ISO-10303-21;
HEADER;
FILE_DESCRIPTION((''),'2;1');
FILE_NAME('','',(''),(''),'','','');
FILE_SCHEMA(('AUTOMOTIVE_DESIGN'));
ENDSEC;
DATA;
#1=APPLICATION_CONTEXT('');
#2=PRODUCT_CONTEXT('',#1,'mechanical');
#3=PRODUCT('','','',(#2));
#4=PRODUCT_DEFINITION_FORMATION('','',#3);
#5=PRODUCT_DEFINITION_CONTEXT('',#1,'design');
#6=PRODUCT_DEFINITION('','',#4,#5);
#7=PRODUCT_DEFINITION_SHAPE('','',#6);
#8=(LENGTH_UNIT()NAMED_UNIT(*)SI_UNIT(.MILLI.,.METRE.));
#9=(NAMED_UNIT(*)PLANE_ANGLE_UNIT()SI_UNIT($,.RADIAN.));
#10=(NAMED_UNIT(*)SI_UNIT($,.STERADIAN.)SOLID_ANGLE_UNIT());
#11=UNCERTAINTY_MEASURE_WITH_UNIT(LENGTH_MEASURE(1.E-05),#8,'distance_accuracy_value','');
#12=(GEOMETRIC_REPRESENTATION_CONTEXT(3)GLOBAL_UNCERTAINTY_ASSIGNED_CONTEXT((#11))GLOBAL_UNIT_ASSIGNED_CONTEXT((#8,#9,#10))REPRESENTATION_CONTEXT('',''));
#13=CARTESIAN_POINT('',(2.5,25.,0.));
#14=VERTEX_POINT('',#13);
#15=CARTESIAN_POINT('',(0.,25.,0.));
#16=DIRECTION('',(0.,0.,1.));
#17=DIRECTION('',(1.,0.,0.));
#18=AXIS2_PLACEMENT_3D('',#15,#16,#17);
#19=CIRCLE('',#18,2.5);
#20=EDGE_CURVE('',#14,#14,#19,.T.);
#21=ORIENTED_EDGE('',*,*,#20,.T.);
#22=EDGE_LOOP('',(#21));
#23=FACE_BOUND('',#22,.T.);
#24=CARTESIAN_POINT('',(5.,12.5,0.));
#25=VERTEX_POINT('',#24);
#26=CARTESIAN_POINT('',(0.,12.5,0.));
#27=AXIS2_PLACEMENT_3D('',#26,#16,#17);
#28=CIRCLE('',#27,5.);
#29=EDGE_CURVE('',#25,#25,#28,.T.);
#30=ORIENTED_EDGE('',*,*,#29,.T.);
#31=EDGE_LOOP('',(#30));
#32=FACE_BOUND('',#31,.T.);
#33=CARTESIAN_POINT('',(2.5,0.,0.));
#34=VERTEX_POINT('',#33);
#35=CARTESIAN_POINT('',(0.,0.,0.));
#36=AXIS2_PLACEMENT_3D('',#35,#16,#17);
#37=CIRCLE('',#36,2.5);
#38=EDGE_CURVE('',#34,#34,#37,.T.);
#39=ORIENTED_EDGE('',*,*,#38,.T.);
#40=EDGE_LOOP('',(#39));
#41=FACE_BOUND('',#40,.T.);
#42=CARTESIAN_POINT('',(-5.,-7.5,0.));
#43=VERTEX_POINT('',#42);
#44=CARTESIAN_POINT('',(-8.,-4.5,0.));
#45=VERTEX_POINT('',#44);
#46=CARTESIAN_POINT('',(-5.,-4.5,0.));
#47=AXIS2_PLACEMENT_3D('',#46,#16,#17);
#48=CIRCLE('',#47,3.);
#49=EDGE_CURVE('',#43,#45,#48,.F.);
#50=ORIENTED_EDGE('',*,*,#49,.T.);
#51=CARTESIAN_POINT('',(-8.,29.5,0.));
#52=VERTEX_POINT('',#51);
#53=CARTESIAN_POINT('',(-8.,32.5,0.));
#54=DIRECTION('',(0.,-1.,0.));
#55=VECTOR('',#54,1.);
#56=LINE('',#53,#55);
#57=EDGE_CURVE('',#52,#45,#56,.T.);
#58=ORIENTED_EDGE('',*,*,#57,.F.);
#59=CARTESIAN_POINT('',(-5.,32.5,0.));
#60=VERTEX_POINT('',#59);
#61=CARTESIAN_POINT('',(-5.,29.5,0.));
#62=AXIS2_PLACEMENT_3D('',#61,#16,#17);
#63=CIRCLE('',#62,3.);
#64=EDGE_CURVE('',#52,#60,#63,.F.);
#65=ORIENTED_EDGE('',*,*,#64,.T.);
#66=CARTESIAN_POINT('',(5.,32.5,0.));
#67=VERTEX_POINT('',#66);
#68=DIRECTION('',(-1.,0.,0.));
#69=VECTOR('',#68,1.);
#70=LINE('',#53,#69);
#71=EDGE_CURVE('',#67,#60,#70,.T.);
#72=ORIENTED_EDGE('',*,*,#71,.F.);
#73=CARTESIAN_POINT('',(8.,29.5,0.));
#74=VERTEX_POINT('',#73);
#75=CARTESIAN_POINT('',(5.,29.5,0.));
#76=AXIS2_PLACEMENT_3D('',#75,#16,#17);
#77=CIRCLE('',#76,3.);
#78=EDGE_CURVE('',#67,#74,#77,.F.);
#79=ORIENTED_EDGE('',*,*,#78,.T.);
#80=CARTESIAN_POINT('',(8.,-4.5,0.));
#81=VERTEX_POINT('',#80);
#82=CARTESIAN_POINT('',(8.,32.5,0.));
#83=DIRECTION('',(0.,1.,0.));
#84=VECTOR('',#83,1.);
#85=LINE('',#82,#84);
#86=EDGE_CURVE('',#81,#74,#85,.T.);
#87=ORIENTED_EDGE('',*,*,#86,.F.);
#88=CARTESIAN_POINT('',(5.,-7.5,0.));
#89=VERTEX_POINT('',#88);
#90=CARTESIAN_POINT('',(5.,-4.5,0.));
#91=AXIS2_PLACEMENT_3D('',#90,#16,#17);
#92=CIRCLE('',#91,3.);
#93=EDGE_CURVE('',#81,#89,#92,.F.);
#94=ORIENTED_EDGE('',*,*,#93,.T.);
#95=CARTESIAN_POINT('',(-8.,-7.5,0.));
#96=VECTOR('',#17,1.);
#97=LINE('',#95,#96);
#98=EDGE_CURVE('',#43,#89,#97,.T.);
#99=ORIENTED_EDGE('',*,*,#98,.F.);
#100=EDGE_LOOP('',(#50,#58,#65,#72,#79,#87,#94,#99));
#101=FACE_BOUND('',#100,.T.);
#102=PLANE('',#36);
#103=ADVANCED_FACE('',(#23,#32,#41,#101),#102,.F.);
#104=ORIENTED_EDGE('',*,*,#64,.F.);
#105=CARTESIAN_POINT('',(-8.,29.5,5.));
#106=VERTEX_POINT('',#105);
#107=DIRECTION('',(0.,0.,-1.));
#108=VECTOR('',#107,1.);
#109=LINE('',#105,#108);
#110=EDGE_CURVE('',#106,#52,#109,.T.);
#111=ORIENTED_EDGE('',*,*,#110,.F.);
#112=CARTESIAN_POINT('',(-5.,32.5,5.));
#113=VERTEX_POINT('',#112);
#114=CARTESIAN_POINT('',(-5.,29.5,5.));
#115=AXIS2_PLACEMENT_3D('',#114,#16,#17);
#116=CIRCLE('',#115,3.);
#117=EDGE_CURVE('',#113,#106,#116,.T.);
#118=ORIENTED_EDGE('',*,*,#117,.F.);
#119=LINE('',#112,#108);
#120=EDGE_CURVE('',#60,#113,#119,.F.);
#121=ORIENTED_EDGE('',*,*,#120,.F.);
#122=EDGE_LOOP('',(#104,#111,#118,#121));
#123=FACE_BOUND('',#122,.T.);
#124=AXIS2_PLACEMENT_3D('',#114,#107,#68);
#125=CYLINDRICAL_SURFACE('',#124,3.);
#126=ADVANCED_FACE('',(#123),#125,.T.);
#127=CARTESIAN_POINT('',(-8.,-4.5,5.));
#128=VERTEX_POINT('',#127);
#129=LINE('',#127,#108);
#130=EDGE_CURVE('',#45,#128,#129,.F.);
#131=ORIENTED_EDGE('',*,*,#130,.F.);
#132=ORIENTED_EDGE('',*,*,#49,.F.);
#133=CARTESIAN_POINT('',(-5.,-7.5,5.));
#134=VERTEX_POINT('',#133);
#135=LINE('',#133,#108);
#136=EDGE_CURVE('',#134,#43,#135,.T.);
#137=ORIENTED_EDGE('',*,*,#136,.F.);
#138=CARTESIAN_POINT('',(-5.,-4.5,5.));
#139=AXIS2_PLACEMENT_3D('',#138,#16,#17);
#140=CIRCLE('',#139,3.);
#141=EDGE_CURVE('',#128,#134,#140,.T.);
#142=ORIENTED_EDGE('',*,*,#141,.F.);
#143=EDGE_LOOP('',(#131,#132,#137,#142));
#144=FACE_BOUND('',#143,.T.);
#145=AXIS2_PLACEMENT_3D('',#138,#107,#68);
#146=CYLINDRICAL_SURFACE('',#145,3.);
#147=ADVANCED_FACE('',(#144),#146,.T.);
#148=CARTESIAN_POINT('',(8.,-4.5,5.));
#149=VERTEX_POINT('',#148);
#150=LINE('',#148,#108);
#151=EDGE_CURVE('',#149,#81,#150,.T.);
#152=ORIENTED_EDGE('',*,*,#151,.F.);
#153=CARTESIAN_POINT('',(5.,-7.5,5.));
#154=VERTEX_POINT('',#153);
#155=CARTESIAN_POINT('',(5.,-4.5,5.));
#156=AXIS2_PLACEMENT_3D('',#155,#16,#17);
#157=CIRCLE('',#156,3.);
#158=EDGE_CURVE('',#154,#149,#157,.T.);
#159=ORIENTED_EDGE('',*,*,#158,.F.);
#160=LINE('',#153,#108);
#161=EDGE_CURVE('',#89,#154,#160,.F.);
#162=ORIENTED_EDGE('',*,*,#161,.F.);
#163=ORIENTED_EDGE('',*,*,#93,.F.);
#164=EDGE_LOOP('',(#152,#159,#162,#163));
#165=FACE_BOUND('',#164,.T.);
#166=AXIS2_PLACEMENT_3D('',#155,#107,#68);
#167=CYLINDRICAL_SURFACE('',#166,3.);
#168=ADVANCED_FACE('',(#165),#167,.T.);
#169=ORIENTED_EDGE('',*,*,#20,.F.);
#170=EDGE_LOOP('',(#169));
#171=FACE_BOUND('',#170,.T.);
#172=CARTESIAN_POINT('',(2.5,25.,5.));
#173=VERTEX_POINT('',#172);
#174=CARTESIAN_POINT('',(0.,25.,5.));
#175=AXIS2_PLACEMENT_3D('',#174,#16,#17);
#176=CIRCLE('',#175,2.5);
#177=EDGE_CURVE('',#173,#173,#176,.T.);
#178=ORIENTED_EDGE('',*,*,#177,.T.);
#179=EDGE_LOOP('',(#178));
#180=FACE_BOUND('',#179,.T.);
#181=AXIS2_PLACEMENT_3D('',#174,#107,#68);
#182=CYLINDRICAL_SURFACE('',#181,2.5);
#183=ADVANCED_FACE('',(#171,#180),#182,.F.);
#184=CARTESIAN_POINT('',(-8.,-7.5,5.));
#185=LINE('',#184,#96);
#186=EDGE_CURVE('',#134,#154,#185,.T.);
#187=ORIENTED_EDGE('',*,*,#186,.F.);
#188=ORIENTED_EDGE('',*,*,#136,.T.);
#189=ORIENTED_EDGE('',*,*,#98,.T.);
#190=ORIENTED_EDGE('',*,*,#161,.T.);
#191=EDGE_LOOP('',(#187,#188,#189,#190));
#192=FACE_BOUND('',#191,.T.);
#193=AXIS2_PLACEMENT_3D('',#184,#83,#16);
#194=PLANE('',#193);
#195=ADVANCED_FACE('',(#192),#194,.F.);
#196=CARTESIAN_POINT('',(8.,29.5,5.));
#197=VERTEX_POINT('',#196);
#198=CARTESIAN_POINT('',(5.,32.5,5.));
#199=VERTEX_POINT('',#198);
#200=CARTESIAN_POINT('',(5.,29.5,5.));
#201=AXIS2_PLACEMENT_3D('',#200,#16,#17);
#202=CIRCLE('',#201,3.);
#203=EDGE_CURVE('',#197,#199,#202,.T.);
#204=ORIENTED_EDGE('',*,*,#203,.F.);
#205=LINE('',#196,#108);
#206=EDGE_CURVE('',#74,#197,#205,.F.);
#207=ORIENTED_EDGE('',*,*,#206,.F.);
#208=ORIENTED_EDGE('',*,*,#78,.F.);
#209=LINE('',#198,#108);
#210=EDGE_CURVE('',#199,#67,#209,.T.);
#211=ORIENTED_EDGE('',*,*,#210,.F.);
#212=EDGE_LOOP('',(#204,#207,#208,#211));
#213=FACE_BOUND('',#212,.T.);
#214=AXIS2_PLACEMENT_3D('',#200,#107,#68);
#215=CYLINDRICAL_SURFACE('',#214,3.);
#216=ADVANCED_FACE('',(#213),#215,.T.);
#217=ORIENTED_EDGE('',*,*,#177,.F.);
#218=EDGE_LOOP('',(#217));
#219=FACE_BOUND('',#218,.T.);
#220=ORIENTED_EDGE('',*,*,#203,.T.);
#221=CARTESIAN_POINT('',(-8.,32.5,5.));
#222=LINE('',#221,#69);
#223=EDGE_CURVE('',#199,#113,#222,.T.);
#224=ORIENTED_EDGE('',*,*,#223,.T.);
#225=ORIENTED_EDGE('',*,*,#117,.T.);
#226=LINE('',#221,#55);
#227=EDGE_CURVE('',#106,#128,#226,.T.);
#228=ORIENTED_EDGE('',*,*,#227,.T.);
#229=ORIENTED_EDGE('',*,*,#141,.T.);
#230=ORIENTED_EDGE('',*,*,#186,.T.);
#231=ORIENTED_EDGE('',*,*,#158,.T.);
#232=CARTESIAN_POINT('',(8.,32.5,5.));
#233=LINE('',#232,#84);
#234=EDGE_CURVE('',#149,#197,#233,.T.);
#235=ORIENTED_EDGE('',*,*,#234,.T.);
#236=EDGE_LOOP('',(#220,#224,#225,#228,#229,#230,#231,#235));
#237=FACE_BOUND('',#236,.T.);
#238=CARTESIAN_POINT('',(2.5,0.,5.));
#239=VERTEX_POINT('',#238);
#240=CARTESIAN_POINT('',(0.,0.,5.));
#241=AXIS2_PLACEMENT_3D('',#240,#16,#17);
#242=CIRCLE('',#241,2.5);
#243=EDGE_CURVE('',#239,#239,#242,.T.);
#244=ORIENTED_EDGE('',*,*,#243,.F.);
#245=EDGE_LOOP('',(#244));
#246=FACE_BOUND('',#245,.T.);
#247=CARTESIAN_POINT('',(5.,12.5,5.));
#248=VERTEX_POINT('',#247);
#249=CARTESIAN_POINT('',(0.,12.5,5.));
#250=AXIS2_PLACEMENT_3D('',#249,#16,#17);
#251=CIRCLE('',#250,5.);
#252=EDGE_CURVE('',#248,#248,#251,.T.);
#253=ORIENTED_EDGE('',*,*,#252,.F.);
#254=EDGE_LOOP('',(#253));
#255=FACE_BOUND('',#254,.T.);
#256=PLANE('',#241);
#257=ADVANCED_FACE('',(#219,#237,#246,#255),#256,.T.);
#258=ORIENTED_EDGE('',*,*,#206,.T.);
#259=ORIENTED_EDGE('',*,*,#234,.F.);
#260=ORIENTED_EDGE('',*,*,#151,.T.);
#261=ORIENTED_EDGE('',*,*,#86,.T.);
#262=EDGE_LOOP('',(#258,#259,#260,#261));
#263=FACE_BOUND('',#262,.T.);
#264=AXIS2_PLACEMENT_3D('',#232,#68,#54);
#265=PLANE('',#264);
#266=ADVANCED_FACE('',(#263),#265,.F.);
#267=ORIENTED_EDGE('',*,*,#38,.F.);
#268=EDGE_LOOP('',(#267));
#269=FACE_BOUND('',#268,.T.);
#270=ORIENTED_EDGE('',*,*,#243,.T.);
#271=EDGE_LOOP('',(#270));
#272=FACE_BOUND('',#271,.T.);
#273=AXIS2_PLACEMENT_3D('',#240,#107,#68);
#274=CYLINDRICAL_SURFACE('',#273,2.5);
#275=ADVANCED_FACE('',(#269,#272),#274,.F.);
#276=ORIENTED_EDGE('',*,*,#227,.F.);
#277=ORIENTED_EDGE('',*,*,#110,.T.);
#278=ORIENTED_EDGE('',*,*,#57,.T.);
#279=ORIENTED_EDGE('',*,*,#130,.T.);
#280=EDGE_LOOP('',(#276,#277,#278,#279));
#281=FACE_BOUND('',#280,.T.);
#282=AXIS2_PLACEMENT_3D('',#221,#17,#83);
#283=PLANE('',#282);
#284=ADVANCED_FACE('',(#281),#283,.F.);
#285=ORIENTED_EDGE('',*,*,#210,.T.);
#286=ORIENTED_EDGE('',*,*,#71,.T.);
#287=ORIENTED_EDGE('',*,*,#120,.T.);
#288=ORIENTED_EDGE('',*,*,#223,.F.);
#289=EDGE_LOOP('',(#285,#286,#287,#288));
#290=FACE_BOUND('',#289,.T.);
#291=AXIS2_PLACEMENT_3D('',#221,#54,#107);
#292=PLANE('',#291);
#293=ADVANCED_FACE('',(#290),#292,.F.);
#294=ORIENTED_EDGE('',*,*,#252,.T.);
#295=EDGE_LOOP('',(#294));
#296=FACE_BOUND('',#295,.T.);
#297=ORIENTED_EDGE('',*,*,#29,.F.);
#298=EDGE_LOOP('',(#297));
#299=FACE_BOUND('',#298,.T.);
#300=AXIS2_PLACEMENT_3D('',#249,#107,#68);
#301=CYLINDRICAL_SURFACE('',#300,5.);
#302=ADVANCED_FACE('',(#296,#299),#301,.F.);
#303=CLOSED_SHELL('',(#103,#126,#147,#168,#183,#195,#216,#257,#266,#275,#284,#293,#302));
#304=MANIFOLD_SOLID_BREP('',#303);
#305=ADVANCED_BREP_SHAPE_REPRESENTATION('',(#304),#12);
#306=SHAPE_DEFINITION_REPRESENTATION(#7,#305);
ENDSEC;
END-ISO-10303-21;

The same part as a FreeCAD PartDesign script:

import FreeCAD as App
import Part
import Sketcher
from FreeCAD import Vector
Q = App.Units.Quantity


def edges_at(feature, points):
    """Names of the edges that pass closest to the given points."""
    edges = feature.Shape.Edges
    near = lambda p: min(range(len(edges)), key=lambda i: edges[i].distToShape(Part.Vertex(*p))[0])
    return sorted({f"Edge{near(p) + 1}" for p in points})

doc = App.newDocument("Part")
body = doc.addObject("PartDesign::Body", "Body")

# Sketch on XY plane
sketch1 = body.newObject("Sketcher::SketchObject", "Sketch")
sketch1.AttachmentSupport = (doc.getObject("XY_Plane"), [""])
sketch1.MapMode = "FlatFace"
sketch1.addGeometry([
    Part.LineSegment(Vector(-8, 32.5, 0), Vector(-8, -7.5, 0)),  # 0
    Part.LineSegment(Vector(-8, -7.5, 0), Vector(8, -7.5, 0)),  # 1
    Part.LineSegment(Vector(8, -7.5, 0), Vector(8, 32.5, 0)),  # 2
    Part.LineSegment(Vector(8, 32.5, 0), Vector(-8, 32.5, 0)),  # 3
    Part.Circle(Vector(0, 0, 0), Vector(0, 0, 1), 2.5),  # 4
    Part.Circle(Vector(0, 12.5, 0), Vector(0, 0, 1), 5),  # 5
    Part.Circle(Vector(0, 25, 0), Vector(0, 0, 1), 2.5),  # 6
], False)
sketch1.addConstraint([
    Sketcher.Constraint("Coincident", 0, 2, 1, 1),
    Sketcher.Constraint("Coincident", 1, 2, 2, 1),
    Sketcher.Constraint("Coincident", 2, 2, 3, 1),
    Sketcher.Constraint("Coincident", 3, 2, 0, 1),
    Sketcher.Constraint("Vertical", 0),
    Sketcher.Constraint("Horizontal", 1),
    Sketcher.Constraint("Vertical", 2),
    Sketcher.Constraint("Horizontal", 3),
    Sketcher.Constraint("Coincident", 4, 3, -1, 1),
    Sketcher.Constraint("Equal", 4, 6),
    Sketcher.Constraint("PointOnObject", 5, 3, -2),
    Sketcher.Constraint("PointOnObject", 6, 3, -2),
    Sketcher.Constraint("Diameter", 4, Q("5 mm")),
    Sketcher.Constraint("Diameter", 5, Q("10 mm")),
    Sketcher.Constraint("DistanceX", 1, 1, 1, 2, Q("16 mm")),
    Sketcher.Constraint("DistanceY", 0, 2, 0, 1, Q("40 mm")),
    Sketcher.Constraint("DistanceY", -1, 1, 6, 3, Q("25 mm")),
    Sketcher.Constraint("DistanceX", 0, 2, -1, 1, Q("8 mm")),
    Sketcher.Constraint("DistanceY", 0, 2, 5, 3, Q("20 mm")),
    Sketcher.Constraint("DistanceY", -1, 1, 5, 3, Q("12.5 mm")),
])
pad1 = body.newObject("PartDesign::Pad", "Pad")
pad1.Profile = sketch1
pad1.Length = 5
doc.recompute()

fillet = body.newObject("PartDesign::Fillet", "Fillet")
fillet.Base = (pad1, edges_at(pad1, [
    (8, -7.5, 2.5),
    (-8, -7.5, 2.5),
    (-8, 32.5, 2.5),
    (8, 32.5, 2.5),
]))
fillet.Radius = 3

doc.recompute()
